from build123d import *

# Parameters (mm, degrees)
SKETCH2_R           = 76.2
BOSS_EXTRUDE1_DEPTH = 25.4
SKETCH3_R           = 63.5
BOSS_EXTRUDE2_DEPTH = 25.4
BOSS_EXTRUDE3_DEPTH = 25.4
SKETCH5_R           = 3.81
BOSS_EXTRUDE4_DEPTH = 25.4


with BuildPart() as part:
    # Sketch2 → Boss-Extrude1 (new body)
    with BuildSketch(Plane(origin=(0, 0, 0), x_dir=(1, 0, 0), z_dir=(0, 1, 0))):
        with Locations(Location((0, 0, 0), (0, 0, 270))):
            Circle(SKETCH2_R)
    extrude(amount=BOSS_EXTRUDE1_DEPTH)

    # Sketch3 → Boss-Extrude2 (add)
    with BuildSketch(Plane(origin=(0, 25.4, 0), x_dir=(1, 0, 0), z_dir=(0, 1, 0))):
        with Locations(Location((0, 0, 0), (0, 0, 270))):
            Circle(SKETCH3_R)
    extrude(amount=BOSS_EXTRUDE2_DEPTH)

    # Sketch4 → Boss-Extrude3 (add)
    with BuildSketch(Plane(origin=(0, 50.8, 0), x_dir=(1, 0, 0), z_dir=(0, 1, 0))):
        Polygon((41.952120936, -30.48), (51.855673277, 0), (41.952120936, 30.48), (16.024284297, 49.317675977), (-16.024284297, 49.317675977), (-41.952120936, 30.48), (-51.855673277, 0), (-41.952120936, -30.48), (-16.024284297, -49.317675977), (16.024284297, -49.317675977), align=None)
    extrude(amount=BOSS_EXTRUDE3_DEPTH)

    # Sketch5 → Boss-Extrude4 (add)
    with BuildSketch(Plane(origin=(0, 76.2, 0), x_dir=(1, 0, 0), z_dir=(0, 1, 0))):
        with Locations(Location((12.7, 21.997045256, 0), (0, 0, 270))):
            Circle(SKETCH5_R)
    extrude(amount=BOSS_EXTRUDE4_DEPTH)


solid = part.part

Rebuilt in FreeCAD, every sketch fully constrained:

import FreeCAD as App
import Part
import Sketcher
Q = App.Units.Quantity

doc = App.newDocument("Part")
body = doc.addObject("PartDesign::Body", "Body")

# Sketch on XZ plane
sketch1 = body.newObject("Sketcher::SketchObject", "Sketch")
sketch1.AttachmentSupport = (doc.getObject("XZ_Plane"), [""])
sketch1.MapMode = "FlatFace"
sketch1.addGeometry(Part.Circle(App.Vector(0, 0, 0), App.Vector(0, 0, 1), 76.2), False)
sketch1.addConstraint([
    Sketcher.Constraint("Coincident", 0, 3, -1, 1),
    Sketcher.Constraint("Diameter", 0, Q("6 in")),
])
pad1 = body.newObject("PartDesign::Pad", "Pad")
pad1.Profile = sketch1
pad1.Length = Q("1 in")
pad1.Reversed = True

# Sketch on XZ plane
sketch2 = body.newObject("Sketcher::SketchObject", "Sketch001")
sketch2.AttachmentSupport = (doc.getObject("XZ_Plane"), [""])
sketch2.MapMode = "FlatFace"
sketch2.AttachmentOffset = App.Placement(App.Vector(0, 0, -1 * 25.4), App.Rotation())
sketch2.addGeometry(Part.Circle(App.Vector(0, 0, 0), App.Vector(0, 0, 1), 63.5), False)
sketch2.addConstraint([
    Sketcher.Constraint("Coincident", 0, 3, -1, 1),
    Sketcher.Constraint("Diameter", 0, Q("5 in")),
])
pad2 = body.newObject("PartDesign::Pad", "Pad001")
pad2.Profile = sketch2
pad2.Length = Q("1 in")
pad2.Reversed = True

# Sketch on XZ plane
sketch3 = body.newObject("Sketcher::SketchObject", "Sketch002")
sketch3.AttachmentSupport = (doc.getObject("XZ_Plane"), [""])
sketch3.MapMode = "FlatFace"
sketch3.AttachmentOffset = App.Placement(App.Vector(0, 0, -2 * 25.4), App.Rotation())
sketch3.addGeometry([
    Part.LineSegment(App.Vector(41.952121, 30.48, 0), App.Vector(51.855673, 0, 0)),  # 0
    Part.LineSegment(App.Vector(51.855673, 0, 0), App.Vector(41.952121, -30.48, 0)),  # 1
    Part.LineSegment(App.Vector(41.952121, -30.48, 0), App.Vector(16.024284, -49.317676, 0)),  # 2
    Part.LineSegment(App.Vector(16.024284, -49.317676, 0), App.Vector(-16.024284, -49.317676, 0)),  # 3
    Part.LineSegment(App.Vector(-16.024284, -49.317676, 0), App.Vector(-41.952121, -30.48, 0)),  # 4
    Part.LineSegment(App.Vector(-41.952121, -30.48, 0), App.Vector(-51.855673, 0, 0)),  # 5
    Part.LineSegment(App.Vector(-51.855673, 0, 0), App.Vector(-41.952121, 30.48, 0)),  # 6
    Part.LineSegment(App.Vector(-41.952121, 30.48, 0), App.Vector(-16.024284, 49.317676, 0)),  # 7
    Part.LineSegment(App.Vector(-16.024284, 49.317676, 0), App.Vector(16.024284, 49.317676, 0)),  # 8
    Part.LineSegment(App.Vector(16.024284, 49.317676, 0), App.Vector(41.952121, 30.48, 0)),  # 9
], False)
sketch3.addConstraint([
    Sketcher.Constraint("Coincident", 0, 2, 1, 1),
    Sketcher.Constraint("Coincident", 1, 2, 2, 1),
    Sketcher.Constraint("Coincident", 2, 2, 3, 1),
    Sketcher.Constraint("Coincident", 3, 2, 4, 1),
    Sketcher.Constraint("Coincident", 4, 2, 5, 1),
    Sketcher.Constraint("Coincident", 5, 2, 6, 1),
    Sketcher.Constraint("Coincident", 6, 2, 7, 1),
    Sketcher.Constraint("Coincident", 7, 2, 8, 1),
    Sketcher.Constraint("Coincident", 8, 2, 9, 1),
    Sketcher.Constraint("Coincident", 9, 2, 0, 1),
    Sketcher.Constraint("Horizontal", 3),
    Sketcher.Constraint("Horizontal", 8),
    Sketcher.Constraint("Symmetric", 0, 2, 5, 2, -1, 1),
    Sketcher.Constraint("Symmetric", 1, 2, 6, 2, -1, 1),
    Sketcher.Constraint("Symmetric", 2, 2, 7, 2, -1, 1),
    Sketcher.Constraint("Symmetric", 4, 2, 9, 2, -1, 1),
    Sketcher.Constraint("Symmetric", 1, 2, 4, 2, -2),
    Sketcher.Constraint("PointOnObject", 0, 2, -1),
    Sketcher.Constraint("Parallel", 4, 9),
    Sketcher.Constraint("Vertical", 3, 2, 7, 2),
    Sketcher.Constraint("Equal", 1, 2),
    Sketcher.Constraint("Angle", 0, Q("-72 deg")),
    Sketcher.Constraint("Angle", 2, Q("-144 deg")),
    Sketcher.Constraint("DistanceY", 1, 2, -1, 1, Q("1.2 in")),
    Sketcher.Constraint("DistanceX", 3, 2, 3, 1, 32.048569),
])
pad3 = body.newObject("PartDesign::Pad", "Pad002")
pad3.Profile = sketch3
pad3.Length = Q("1 in")
pad3.Reversed = True

# Sketch on XZ plane
sketch4 = body.newObject("Sketcher::SketchObject", "Sketch003")
sketch4.AttachmentSupport = (doc.getObject("XZ_Plane"), [""])
sketch4.MapMode = "FlatFace"
sketch4.AttachmentOffset = App.Placement(App.Vector(0, 0, -3 * 25.4), App.Rotation())
sketch4.addGeometry(Part.Circle(App.Vector(12.7, -21.997045, 0), App.Vector(0, 0, 1), 3.81), False)
sketch4.addConstraint([
    Sketcher.Constraint("Diameter", 0, Q("0.3 in")),
    Sketcher.Constraint("DistanceX", -1, 1, 0, 3, Q("0.5 in")),
    Sketcher.Constraint("DistanceY", 0, 3, -1, 1, 21.997045),
])
pad4 = body.newObject("PartDesign::Pad", "Pad003")
pad4.Profile = sketch4
pad4.Length = Q("1 in")
pad4.Reversed = True

doc.recompute()
